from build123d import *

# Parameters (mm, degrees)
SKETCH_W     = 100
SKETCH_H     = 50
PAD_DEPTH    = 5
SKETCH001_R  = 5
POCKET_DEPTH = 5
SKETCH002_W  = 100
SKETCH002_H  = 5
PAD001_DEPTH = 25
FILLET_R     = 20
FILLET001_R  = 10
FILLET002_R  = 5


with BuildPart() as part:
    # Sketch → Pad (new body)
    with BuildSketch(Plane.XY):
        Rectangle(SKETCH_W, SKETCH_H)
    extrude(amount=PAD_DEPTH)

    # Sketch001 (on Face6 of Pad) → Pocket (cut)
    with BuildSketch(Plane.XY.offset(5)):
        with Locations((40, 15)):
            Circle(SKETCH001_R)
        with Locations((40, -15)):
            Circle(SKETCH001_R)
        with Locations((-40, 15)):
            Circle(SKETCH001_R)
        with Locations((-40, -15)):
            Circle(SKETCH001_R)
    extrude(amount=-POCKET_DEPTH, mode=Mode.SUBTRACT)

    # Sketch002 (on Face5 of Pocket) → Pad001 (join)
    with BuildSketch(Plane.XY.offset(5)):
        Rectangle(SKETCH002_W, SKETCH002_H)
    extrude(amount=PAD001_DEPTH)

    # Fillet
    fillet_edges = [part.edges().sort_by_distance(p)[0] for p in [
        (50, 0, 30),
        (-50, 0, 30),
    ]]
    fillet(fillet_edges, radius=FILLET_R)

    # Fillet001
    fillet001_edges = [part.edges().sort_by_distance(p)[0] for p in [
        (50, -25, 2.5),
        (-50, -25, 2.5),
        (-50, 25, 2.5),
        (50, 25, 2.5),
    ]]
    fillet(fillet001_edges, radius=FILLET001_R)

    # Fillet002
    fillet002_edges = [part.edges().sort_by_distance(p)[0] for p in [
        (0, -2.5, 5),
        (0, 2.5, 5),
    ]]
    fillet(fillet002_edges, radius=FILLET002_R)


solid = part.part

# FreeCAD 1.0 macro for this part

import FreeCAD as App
import Part
import Sketcher
from FreeCAD import Vector


def edges_at(feature, points):
    """Names of the edges that pass closest to the given points."""
    edges = feature.Shape.Edges
    near = lambda p: min(range(len(edges)), key=lambda i: edges[i].distToShape(Part.Vertex(*p))[0])
    return sorted({f"Edge{near(p) + 1}" for p in points})

doc = App.newDocument("Part")
body = doc.addObject("PartDesign::Body", "Body")

# Sketch on XY plane
sketch1 = body.newObject("Sketcher::SketchObject", "Sketch")
sketch1.AttachmentSupport = (doc.getObject("XY_Plane"), [""])
sketch1.MapMode = "FlatFace"
sketch1.addGeometry([
    Part.LineSegment(Vector(-50, 25, 0), Vector(-50, -25, 0)),
    Part.LineSegment(Vector(-50, -25, 0), Vector(50, -25, 0)),
    Part.LineSegment(Vector(50, -25, 0), Vector(50, 25, 0)),
    Part.LineSegment(Vector(50, 25, 0), Vector(-50, 25, 0)),
], False)
sketch1.addConstraint([
    Sketcher.Constraint("Coincident", 0, 2, 1, 1),
    Sketcher.Constraint("Coincident", 1, 2, 2, 1),
    Sketcher.Constraint("Coincident", 2, 2, 3, 1),
    Sketcher.Constraint("Coincident", 3, 2, 0, 1),
    Sketcher.Constraint("Vertical", 0),
    Sketcher.Constraint("Horizontal", 1),
    Sketcher.Constraint("Vertical", 2),
    Sketcher.Constraint("Horizontal", 3),
    Sketcher.Constraint("Symmetric", 0, 2, 2, 2, -1, 1),
    Sketcher.Constraint("DistanceX", 1, 1, 1, 2, 100.0),
    Sketcher.Constraint("DistanceY", 0, 2, 0, 1, 50.0),
])
pad1 = body.newObject("PartDesign::Pad", "Pad")
pad1.Profile = sketch1
pad1.Length = 5

# Sketch on XY plane
sketch2 = body.newObject("Sketcher::SketchObject", "Sketch001")
sketch2.AttachmentSupport = (doc.getObject("XY_Plane"), [""])
sketch2.MapMode = "FlatFace"
sketch2.AttachmentOffset = App.Placement(Vector(0, 0, 5), App.Rotation())
sketch2.addGeometry([
    Part.Circle(Vector(40, 15, 0), Vector(0, 0, 1), 5),
    Part.Circle(Vector(40, -15, 0), Vector(0, 0, 1), 5),
    Part.Circle(Vector(-40, 15, 0), Vector(0, 0, 1), 5),
    Part.Circle(Vector(-40, -15, 0), Vector(0, 0, 1), 5),
], False)
sketch2.addConstraint([
    Sketcher.Constraint("Equal", 0, 1),
    Sketcher.Constraint("Equal", 1, 2),
    Sketcher.Constraint("Equal", 2, 3),
    Sketcher.Constraint("Symmetric", 1, 3, 2, 3, -1, 1),
    Sketcher.Constraint("Symmetric", 0, 3, 3, 3, -1, 1),
    Sketcher.Constraint("Symmetric", 0, 3, 2, 3, -2),
    Sketcher.Constraint("Diameter", 0, 10.0),
    Sketcher.Constraint("DistanceX", -1, 1, 0, 3, 40.0),
    Sketcher.Constraint("DistanceY", -1, 1, 0, 3, 15.0),
])
pocket1 = body.newObject("PartDesign::Pocket", "Pocket")
pocket1.Profile = sketch2
pocket1.Length = 5

# Sketch on XY plane
sketch3 = body.newObject("Sketcher::SketchObject", "Sketch002")
sketch3.AttachmentSupport = (doc.getObject("XY_Plane"), [""])
sketch3.MapMode = "FlatFace"
sketch3.AttachmentOffset = App.Placement(Vector(0, 0, 5), App.Rotation())
sketch3.addGeometry([
    Part.LineSegment(Vector(-50, 2, 0), Vector(-50, -2, 0)),
    Part.LineSegment(Vector(-50, -2, 0), Vector(50, -2, 0)),
    Part.LineSegment(Vector(50, -2, 0), Vector(50, 2, 0)),
    Part.LineSegment(Vector(50, 2, 0), Vector(-50, 2, 0)),
], False)
sketch3.addConstraint([
    Sketcher.Constraint("Coincident", 0, 2, 1, 1),
    Sketcher.Constraint("Coincident", 1, 2, 2, 1),
    Sketcher.Constraint("Coincident", 2, 2, 3, 1),
    Sketcher.Constraint("Coincident", 3, 2, 0, 1),
    Sketcher.Constraint("Vertical", 0),
    Sketcher.Constraint("Horizontal", 1),
    Sketcher.Constraint("Vertical", 2),
    Sketcher.Constraint("Horizontal", 3),
    Sketcher.Constraint("Symmetric", 0, 2, 2, 2, -1, 1),
    Sketcher.Constraint("DistanceX", 1, 1, 1, 2, 100.0),
    Sketcher.Constraint("DistanceY", 0, 2, 0, 1, 5.0),
])
pad2 = body.newObject("PartDesign::Pad", "Pad001")
pad2.Profile = sketch3
pad2.Length = 25
doc.recompute()

fillet = body.newObject("PartDesign::Fillet", "Fillet")
fillet.Base = (pad2, edges_at(pad2, [(50, 0, 30), (-50, 0, 30)]))
fillet.Radius = 20
doc.recompute()

fillet2 = body.newObject("PartDesign::Fillet", "Fillet001")
fillet2.Base = (fillet, edges_at(fillet, [
    (50, -25, 2.5),
    (-50, -25, 2.5),
    (-50, 25, 2.5),
    (50, 25, 2.5),
]))
fillet2.Radius = 10
doc.recompute()

fillet3 = body.newObject("PartDesign::Fillet", "Fillet002")
fillet3.Base = (fillet2, edges_at(fillet2, [(0, -2.5, 5), (0, 2.5, 5)]))
fillet3.Radius = 5

doc.recompute()
